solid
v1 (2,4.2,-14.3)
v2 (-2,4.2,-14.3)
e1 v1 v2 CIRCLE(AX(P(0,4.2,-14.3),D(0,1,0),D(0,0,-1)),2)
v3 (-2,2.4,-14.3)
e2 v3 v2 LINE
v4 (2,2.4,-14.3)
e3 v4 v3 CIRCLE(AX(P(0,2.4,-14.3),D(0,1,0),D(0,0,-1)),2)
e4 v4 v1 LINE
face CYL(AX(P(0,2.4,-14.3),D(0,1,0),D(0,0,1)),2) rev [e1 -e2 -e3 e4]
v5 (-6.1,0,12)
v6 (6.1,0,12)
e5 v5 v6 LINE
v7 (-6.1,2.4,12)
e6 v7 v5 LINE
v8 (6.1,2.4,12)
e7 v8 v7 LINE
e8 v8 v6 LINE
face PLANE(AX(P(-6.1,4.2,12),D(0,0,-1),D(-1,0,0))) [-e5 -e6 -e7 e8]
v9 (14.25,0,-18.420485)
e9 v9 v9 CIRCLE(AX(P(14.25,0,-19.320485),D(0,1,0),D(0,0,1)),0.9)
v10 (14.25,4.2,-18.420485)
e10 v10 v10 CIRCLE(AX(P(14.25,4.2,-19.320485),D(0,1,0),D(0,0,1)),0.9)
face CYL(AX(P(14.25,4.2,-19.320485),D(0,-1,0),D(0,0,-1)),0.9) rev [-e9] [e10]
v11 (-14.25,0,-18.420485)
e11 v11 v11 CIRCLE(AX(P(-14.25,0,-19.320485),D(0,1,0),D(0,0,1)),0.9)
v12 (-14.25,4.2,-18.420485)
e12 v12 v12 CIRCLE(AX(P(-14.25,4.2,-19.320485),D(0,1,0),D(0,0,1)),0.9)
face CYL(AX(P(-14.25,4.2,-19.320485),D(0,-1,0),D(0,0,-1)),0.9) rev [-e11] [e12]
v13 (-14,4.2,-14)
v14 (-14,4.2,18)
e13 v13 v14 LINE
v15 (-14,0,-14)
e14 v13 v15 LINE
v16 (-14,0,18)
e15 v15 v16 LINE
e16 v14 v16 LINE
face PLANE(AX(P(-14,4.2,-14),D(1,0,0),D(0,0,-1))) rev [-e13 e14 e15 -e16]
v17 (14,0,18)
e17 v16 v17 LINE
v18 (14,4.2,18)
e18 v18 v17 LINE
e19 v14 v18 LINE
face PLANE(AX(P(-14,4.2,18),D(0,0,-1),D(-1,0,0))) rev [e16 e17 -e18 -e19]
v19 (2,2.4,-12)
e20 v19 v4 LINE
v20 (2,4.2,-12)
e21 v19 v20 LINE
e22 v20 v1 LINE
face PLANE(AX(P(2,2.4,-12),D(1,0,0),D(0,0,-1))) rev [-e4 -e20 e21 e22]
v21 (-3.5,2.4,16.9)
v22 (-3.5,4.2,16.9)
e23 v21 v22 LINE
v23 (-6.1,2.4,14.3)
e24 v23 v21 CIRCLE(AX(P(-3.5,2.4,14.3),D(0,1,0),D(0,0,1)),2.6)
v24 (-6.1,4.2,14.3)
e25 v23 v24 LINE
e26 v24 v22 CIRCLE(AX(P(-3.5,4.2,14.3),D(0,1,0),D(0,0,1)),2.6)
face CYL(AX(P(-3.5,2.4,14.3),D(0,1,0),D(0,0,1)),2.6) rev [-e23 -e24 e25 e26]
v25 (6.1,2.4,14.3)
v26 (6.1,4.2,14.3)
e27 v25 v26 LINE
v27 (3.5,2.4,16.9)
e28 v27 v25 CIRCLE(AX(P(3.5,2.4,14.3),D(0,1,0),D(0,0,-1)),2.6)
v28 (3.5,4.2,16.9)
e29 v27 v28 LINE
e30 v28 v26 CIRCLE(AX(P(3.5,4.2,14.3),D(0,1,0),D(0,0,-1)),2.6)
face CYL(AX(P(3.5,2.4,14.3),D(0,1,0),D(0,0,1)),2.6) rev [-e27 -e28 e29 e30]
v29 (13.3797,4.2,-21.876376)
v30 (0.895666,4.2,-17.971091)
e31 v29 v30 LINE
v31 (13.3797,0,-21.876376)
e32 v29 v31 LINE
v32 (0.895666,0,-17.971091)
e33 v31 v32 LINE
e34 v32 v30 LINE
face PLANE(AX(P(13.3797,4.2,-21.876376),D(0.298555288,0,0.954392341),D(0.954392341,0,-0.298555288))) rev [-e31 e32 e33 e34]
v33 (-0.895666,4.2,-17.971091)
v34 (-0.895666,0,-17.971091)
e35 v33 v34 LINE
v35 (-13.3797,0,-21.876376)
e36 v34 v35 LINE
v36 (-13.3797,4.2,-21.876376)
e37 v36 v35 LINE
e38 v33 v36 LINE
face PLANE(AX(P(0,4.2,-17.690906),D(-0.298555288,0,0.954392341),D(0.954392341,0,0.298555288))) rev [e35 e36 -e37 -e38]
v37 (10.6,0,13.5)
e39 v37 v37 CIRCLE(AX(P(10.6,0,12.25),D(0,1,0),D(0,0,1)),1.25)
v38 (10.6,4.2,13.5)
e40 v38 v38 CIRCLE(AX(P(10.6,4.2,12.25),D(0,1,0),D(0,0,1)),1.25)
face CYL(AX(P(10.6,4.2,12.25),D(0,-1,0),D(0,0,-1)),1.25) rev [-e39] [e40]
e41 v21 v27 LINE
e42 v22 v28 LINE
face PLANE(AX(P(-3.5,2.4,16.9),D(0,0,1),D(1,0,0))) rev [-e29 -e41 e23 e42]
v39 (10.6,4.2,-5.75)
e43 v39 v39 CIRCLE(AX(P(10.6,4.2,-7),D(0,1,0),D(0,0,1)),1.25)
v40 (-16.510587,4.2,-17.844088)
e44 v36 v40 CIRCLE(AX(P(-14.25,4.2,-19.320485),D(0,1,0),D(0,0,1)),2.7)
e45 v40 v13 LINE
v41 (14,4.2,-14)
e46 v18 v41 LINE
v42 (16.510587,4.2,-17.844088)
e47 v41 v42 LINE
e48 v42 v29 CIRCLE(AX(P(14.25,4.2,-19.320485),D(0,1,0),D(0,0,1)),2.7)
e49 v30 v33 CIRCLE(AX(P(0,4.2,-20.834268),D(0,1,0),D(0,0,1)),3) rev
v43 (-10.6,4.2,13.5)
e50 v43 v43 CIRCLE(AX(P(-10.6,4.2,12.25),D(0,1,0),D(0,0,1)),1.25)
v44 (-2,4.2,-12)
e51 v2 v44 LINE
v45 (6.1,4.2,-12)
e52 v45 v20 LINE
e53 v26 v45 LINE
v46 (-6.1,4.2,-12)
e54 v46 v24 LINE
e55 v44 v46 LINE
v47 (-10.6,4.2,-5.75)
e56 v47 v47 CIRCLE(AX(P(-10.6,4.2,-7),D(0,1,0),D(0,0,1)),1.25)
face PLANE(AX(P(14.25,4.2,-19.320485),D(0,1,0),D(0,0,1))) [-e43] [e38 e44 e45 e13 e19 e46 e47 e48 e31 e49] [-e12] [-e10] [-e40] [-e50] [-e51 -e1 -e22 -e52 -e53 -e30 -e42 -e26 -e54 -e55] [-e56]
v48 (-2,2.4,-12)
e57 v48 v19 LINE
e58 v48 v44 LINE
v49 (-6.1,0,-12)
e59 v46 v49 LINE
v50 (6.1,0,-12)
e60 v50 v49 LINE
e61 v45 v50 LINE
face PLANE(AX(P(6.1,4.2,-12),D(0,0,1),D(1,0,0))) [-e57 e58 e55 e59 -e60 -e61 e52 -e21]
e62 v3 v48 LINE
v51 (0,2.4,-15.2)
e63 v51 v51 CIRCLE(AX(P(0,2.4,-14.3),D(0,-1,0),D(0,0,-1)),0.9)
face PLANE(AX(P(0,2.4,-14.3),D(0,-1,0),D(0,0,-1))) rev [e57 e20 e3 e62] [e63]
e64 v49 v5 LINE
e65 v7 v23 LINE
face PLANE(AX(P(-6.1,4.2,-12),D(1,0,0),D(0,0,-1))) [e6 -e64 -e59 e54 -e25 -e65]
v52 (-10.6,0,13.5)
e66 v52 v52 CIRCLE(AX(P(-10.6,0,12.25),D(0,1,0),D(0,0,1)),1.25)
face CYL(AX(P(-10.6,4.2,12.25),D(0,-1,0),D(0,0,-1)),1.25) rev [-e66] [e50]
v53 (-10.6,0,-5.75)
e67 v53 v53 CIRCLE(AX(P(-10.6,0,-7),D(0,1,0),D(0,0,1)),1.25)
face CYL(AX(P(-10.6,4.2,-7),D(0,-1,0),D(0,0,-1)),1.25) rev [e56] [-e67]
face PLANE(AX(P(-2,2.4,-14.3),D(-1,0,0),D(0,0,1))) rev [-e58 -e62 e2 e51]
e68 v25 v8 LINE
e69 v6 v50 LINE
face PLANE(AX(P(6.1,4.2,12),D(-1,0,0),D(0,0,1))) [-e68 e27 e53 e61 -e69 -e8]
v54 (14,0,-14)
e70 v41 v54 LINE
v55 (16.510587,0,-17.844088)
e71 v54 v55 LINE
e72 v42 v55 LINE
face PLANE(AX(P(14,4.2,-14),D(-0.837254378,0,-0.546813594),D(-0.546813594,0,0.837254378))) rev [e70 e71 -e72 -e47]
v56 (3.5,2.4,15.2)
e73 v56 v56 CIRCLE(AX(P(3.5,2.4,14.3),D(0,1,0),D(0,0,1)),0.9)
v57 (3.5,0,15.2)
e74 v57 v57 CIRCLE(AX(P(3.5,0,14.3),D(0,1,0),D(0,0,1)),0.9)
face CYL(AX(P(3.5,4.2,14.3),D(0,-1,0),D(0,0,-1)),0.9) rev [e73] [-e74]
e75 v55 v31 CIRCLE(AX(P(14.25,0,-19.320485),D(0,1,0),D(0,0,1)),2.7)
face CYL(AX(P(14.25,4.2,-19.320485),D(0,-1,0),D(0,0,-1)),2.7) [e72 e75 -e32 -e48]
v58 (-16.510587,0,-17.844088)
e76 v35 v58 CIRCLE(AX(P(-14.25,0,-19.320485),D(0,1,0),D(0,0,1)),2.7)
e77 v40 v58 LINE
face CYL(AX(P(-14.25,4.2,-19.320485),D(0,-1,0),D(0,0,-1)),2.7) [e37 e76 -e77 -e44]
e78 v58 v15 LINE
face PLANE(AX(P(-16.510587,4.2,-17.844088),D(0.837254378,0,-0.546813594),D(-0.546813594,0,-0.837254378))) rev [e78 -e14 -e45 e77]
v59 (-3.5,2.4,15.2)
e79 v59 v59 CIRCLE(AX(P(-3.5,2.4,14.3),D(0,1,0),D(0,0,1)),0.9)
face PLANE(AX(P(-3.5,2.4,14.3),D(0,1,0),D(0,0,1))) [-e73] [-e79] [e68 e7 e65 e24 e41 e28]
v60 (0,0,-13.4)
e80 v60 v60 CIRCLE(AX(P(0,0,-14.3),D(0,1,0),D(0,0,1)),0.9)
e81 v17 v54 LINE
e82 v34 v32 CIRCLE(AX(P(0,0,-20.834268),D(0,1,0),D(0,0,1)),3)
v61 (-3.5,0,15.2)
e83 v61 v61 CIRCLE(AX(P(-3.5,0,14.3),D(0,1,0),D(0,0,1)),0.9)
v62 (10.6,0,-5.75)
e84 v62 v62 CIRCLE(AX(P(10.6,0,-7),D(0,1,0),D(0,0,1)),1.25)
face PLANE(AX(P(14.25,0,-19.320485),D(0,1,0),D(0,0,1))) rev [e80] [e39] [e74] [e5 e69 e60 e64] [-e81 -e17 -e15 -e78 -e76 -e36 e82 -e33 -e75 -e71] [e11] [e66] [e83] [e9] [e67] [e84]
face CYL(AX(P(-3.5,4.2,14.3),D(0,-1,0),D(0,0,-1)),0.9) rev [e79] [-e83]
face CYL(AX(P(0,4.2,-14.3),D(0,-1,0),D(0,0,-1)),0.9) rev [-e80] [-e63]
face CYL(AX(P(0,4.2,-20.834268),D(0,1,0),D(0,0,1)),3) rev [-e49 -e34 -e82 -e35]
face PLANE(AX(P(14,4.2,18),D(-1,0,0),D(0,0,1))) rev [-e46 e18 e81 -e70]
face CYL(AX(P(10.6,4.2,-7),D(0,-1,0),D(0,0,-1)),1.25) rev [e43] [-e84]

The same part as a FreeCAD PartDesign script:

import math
import FreeCAD as App
import Part
import Sketcher


def edges_at(feature, points):
    """Names of the edges that pass closest to the given points."""
    edges = feature.Shape.Edges
    near = lambda p: min(range(len(edges)), key=lambda i: edges[i].distToShape(Part.Vertex(*p))[0])
    return sorted({f"Edge{near(p) + 1}" for p in points})

doc = App.newDocument("Part")
body = doc.addObject("PartDesign::Body", "Body")

# Sketch on XZ plane
sketch1 = body.newObject("Sketcher::SketchObject", "Sketch")
sketch1.AttachmentSupport = (doc.getObject("XZ_Plane"), [""])
sketch1.MapMode = "FlatFace"
sketch1.addGeometry([
    Part.LineSegment(App.Vector(14, 18, 0), App.Vector(14, -14, 0)),  # 0
    Part.LineSegment(App.Vector(14, -14, 0), App.Vector(16.5, -17.8, 0)),  # 1
    Part.ArcOfCircle(Part.Circle(App.Vector(14.2, -19.3, 0), App.Vector(0, 0, 1), 2.7), math.radians(-109), math.radians(33)),  # 2
    Part.LineSegment(App.Vector(13.4, -21.9, 0), App.Vector(0, -17.7, 0)),  # 3
    Part.LineSegment(App.Vector(0, -17.7, 0), App.Vector(-13.4, -21.9, 0)),  # 4
    Part.ArcOfCircle(Part.Circle(App.Vector(-14.2, -19.3, 0), App.Vector(0, 0, 1), 2.7), math.radians(147), math.radians(289)),  # 5
    Part.LineSegment(App.Vector(-16.5, -17.8, 0), App.Vector(-14, -14, 0)),  # 6
    Part.LineSegment(App.Vector(-14, -14, 0), App.Vector(-14, 18, 0)),  # 7
    Part.LineSegment(App.Vector(-14, 18, 0), App.Vector(14, 18, 0)),  # 8
    Part.Circle(App.Vector(-10.6, 12.2, 0), App.Vector(0, 0, 1), 1.2),  # 9
    Part.Circle(App.Vector(-3.5, 14.3, 0), App.Vector(0, 0, 1), 0.9),  # 10
    Part.Circle(App.Vector(3.5, 14.3, 0), App.Vector(0, 0, 1), 0.9),  # 11
    Part.Circle(App.Vector(10.6, 12.2, 0), App.Vector(0, 0, 1), 1.2),  # 12
    Part.LineSegment(App.Vector(6.1, 12, 0), App.Vector(-6.1, 12, 0)),  # 13
    Part.LineSegment(App.Vector(-6.1, 12, 0), App.Vector(-6.1, -12, 0)),  # 14
    Part.LineSegment(App.Vector(-6.1, -12, 0), App.Vector(6.1, -12, 0)),  # 15
    Part.LineSegment(App.Vector(6.1, -12, 0), App.Vector(6.1, 12, 0)),  # 16
    Part.Circle(App.Vector(-10.6, -7, 0), App.Vector(0, 0, 1), 1.2),  # 17
    Part.Circle(App.Vector(-14.2, -19.3, 0), App.Vector(0, 0, 1), 0.9),  # 18
    Part.Circle(App.Vector(10.6, -7, 0), App.Vector(0, 0, 1), 1.2),  # 19
    Part.Circle(App.Vector(0, -14.3, 0), App.Vector(0, 0, 1), 0.9),  # 20
    Part.Circle(App.Vector(14.2, -19.3, 0), App.Vector(0, 0, 1), 0.9),  # 21
], False)
sketch1.addConstraint([
    Sketcher.Constraint("Coincident", 0, 2, 1, 1),
    Sketcher.Constraint("Tangent", 1, 2, 2, 2),
    Sketcher.Constraint("Coincident", 2, 1, 3, 1),
    Sketcher.Constraint("Coincident", 3, 2, 4, 1),
    Sketcher.Constraint("Coincident", 4, 2, 5, 2),
    Sketcher.Constraint("Tangent", 5, 1, 6, 1),
    Sketcher.Constraint("Coincident", 6, 2, 7, 1),
    Sketcher.Constraint("Coincident", 7, 2, 8, 1),
    Sketcher.Constraint("Coincident", 8, 2, 0, 1),
    Sketcher.Constraint("Coincident", 13, 2, 14, 1),
    Sketcher.Constraint("Coincident", 14, 2, 15, 1),
    Sketcher.Constraint("Coincident", 15, 2, 16, 1),
    Sketcher.Constraint("Coincident", 16, 2, 13, 1),
    Sketcher.Constraint("Vertical", 0),
    Sketcher.Constraint("Vertical", 7),
    Sketcher.Constraint("Horizontal", 8),
    Sketcher.Constraint("Horizontal", 13),
    Sketcher.Constraint("Vertical", 14),
    Sketcher.Constraint("Horizontal", 15),
    Sketcher.Constraint("Vertical", 16),
    Sketcher.Constraint("Coincident", 18, 3, 5, 3),
    Sketcher.Constraint("Coincident", 21, 3, 2, 3),
    Sketcher.Constraint("Equal", 2, 5),
    Sketcher.Constraint("Equal", 10, 11),
    Sketcher.Constraint("Equal", 9, 12),
    Sketcher.Constraint("Equal", 12, 17),
    Sketcher.Constraint("Equal", 11, 18),
    Sketcher.Constraint("Equal", 17, 19),
    Sketcher.Constraint("Equal", 18, 20),
    Sketcher.Constraint("Equal", 20, 21),
    Sketcher.Constraint("Symmetric", 13, 2, 15, 2, -1, 1),
    Sketcher.Constraint("Symmetric", 2, 3, 5, 3, -2),
    Sketcher.Constraint("Symmetric", 10, 3, 11, 3, -2),
    Sketcher.Constraint("Symmetric", 9, 3, 12, 3, -2),
    Sketcher.Constraint("Symmetric", 17, 3, 19, 3, -2),
    Sketcher.Constraint("Symmetric", 0, 2, 6, 2, -2),
    Sketcher.Constraint("PointOnObject", 20, 3, -2),
    Sketcher.Constraint("PointOnObject", 3, 2, -2),
    Sketcher.Constraint("Horizontal", 2, 1, 4, 2),
    Sketcher.Constraint("Vertical", 9, 3, 17, 3),
    Sketcher.Constraint("Diameter", 9, 2.5),
    Sketcher.Constraint("Diameter", 10, 1.8),
    Sketcher.Constraint("Radius", 2, 2.7),
    Sketcher.Constraint("DistanceX", 8, 1, 8, 2, 28.0),
    Sketcher.Constraint("DistanceY", 0, 2, 0, 1, 32.0),
    Sketcher.Constraint("DistanceY", 14, 2, 14, 1, 24.0),
    Sketcher.Constraint("DistanceX", 13, 2, 13, 1, 12.2),
    Sketcher.Constraint("DistanceY", 17, 3, -1, 1, 7.0),
    Sketcher.Constraint("DistanceY", 0, 2, -1, 1, 14.0),
    Sketcher.Constraint("DistanceX", 10, 3, 11, 3, 7.0),
    Sketcher.Constraint("DistanceX", 9, 3, -1, 1, 10.6),
    Sketcher.Constraint("DistanceY", -1, 1, 10, 3, 14.3),
    Sketcher.Constraint("DistanceY", 20, 3, -1, 1, 14.3),
    Sketcher.Constraint("DistanceX", 5, 3, 2, 3, 28.5),
    Sketcher.Constraint("DistanceY", -1, 1, 9, 3, 12.25),
    Sketcher.Constraint("DistanceX", -1, 1, 2, 1, 13.3797),
    Sketcher.Constraint("DistanceY", 1, 2, -1, 1, 17.844088),
    Sketcher.Constraint("DistanceY", 2, 1, 3, 2, 4.18547),
])
pad1 = body.newObject("PartDesign::Pad", "Pad")
pad1.Profile = sketch1
pad1.Length = 4.2
pad1.Reversed = True
doc.recompute()

fillet = body.newObject("PartDesign::Fillet", "Fillet")
fillet.Base = (pad1, edges_at(pad1, [(0, 2.1, -17.691)]))
fillet.Radius = 3

# Sketch on XZ plane
sketch2 = body.newObject("Sketcher::SketchObject", "Sketch001")
sketch2.AttachmentSupport = (doc.getObject("XZ_Plane"), [""])
sketch2.MapMode = "FlatFace"
sketch2.AttachmentOffset = App.Placement(App.Vector(0, 0, -4.2), App.Rotation())
sketch2.addGeometry([
    Part.LineSegment(App.Vector(-6.1, 12, 0), App.Vector(-6.1, 14.3, 0)),  # 0
    Part.ArcOfCircle(Part.Circle(App.Vector(-3.5, 14.3, 0), App.Vector(0, 0, 1), 2.6), math.radians(90), math.radians(180)),  # 1
    Part.LineSegment(App.Vector(-3.5, 16.9, 0), App.Vector(3.5, 16.9, 0)),  # 2
    Part.ArcOfCircle(Part.Circle(App.Vector(3.5, 14.3, 0), App.Vector(0, 0, 1), 2.6), math.radians(0), math.radians(90)),  # 3
    Part.LineSegment(App.Vector(6.1, 14.3, 0), App.Vector(6.1, 12, 0)),  # 4
    Part.LineSegment(App.Vector(6.1, 12, 0), App.Vector(-6.1, 12, 0)),  # 5
    Part.LineSegment(App.Vector(-2, -14.3, 0), App.Vector(-2, -12, 0)),  # 6
    Part.LineSegment(App.Vector(-2, -12, 0), App.Vector(2, -12, 0)),  # 7
    Part.LineSegment(App.Vector(2, -12, 0), App.Vector(2, -14.3, 0)),  # 8
    Part.ArcOfCircle(Part.Circle(App.Vector(0, -14.3, 0), App.Vector(0, 0, 1), 2), math.radians(180), math.radians(360)),  # 9
], False)
sketch2.addConstraint([
    Sketcher.Constraint("Tangent", 0, 2, 1, 2),
    Sketcher.Constraint("Tangent", 1, 1, 2, 1),
    Sketcher.Constraint("Tangent", 2, 2, 3, 2),
    Sketcher.Constraint("Tangent", 3, 1, 4, 1),
    Sketcher.Constraint("Coincident", 4, 2, 5, 1),
    Sketcher.Constraint("Coincident", 5, 2, 0, 1),
    Sketcher.Constraint("Coincident", 6, 2, 7, 1),
    Sketcher.Constraint("Coincident", 7, 2, 8, 1),
    Sketcher.Constraint("Tangent", 8, 2, 9, 2),
    Sketcher.Constraint("Tangent", 9, 1, 6, 1),
    Sketcher.Constraint("Vertical", 0),
    Sketcher.Constraint("Horizontal", 2),
    Sketcher.Constraint("Vertical", 4),
    Sketcher.Constraint("Horizontal", 5),
    Sketcher.Constraint("Vertical", 6),
    Sketcher.Constraint("Horizontal", 7),
    Sketcher.Constraint("Vertical", 8),
    Sketcher.Constraint("Equal", 1, 3),
    Sketcher.Constraint("PointOnObject", 9, 3, -2),
    Sketcher.Constraint("Equal", 4, 6),
    Sketcher.Constraint("Radius", 9, 2.0),
    Sketcher.Constraint("Radius", 1, 2.6),
    Sketcher.Constraint("DistanceX", 2, 1, 2, 2, 7.0),
    Sketcher.Constraint("DistanceY", 0, 1, 0, 2, 2.3),
    Sketcher.Constraint("DistanceY", -1, 1, 4, 2, 12.0),
    Sketcher.Constraint("DistanceY", 6, 2, -1, 1, 12.0),
    Sketcher.Constraint("DistanceX", 1, 3, -1, 1, 3.5),
])
pocket1 = body.newObject("PartDesign::Pocket", "Pocket")
pocket1.Profile = sketch2
pocket1.Length = 1.8
pocket1.Reversed = True

doc.recompute()
